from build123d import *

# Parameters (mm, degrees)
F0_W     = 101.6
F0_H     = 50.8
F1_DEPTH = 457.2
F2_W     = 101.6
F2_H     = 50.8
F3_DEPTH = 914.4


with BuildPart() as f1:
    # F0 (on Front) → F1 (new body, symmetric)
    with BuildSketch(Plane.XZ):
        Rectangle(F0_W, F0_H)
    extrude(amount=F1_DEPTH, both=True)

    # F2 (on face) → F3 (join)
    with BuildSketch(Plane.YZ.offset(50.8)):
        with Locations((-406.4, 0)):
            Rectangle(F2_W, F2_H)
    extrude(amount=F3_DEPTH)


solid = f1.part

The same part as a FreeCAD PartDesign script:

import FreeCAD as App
import Part
import Sketcher
from FreeCAD import Vector
Q = App.Units.Quantity


def add_polygon(sketch, points):
    """Adds a closed chain of lines whose ends are joined by coincident constraints."""
    first, n = sketch.GeometryCount, len(points)
    for a, b in zip(points, points[1:] + points[:1]):
        sketch.addGeometry(Part.LineSegment(App.Vector(*a, 0), App.Vector(*b, 0)), False)
    for i in range(n):
        sketch.addConstraint(Sketcher.Constraint("Coincident", first + i, 2, first + (i + 1) % n, 1))

doc = App.newDocument("Part")
body = doc.addObject("PartDesign::Body", "Body")

# Sketch on XZ plane
sketch1 = body.newObject("Sketcher::SketchObject", "Sketch")
sketch1.AttachmentSupport = (doc.getObject("XZ_Plane"), [""])
sketch1.MapMode = "FlatFace"
add_polygon(sketch1, [(-50.8, 25.4), (-50.8, -25.4), (50.8, -25.4), (50.8, 25.4)])  # lines 0-3
sketch1.addConstraint(Sketcher.Constraint("Vertical", 0))
sketch1.addConstraint(Sketcher.Constraint("Horizontal", 1))
sketch1.addConstraint(Sketcher.Constraint("Vertical", 2))
sketch1.addConstraint(Sketcher.Constraint("Horizontal", 3))
sketch1.addConstraint(Sketcher.Constraint("Symmetric", 0, 2, 2, 2, -1, 1))
sketch1.addConstraint(Sketcher.Constraint("DistanceX", 1, 1, 1, 2, Q("4 in")))
sketch1.addConstraint(Sketcher.Constraint("DistanceY", 0, 2, 0, 1, Q("2 in")))
pad1 = body.newObject("PartDesign::Pad", "Pad")
pad1.Profile = sketch1
pad1.Length = Q("36 in")
pad1.Midplane = True

# Sketch on YZ plane
sketch2 = body.newObject("Sketcher::SketchObject", "Sketch001")
sketch2.AttachmentSupport = (doc.getObject("YZ_Plane"), [""])
sketch2.MapMode = "FlatFace"
sketch2.AttachmentOffset = App.Placement(Vector(0, 0, 2 * 25.4), App.Rotation())
add_polygon(sketch2, [(-457.2, 25.4), (-457.2, -25.4), (-355.6, -25.4), (-355.6, 25.4)])  # lines 0-3
sketch2.addConstraint(Sketcher.Constraint("Vertical", 0))
sketch2.addConstraint(Sketcher.Constraint("Horizontal", 1))
sketch2.addConstraint(Sketcher.Constraint("Vertical", 2))
sketch2.addConstraint(Sketcher.Constraint("Horizontal", 3))
sketch2.addConstraint(Sketcher.Constraint("DistanceX", 1, 1, 1, 2, Q("4 in")))
sketch2.addConstraint(Sketcher.Constraint("DistanceY", 0, 2, 0, 1, Q("2 in")))
sketch2.addConstraint(Sketcher.Constraint("DistanceX", 0, 2, -1, 1, Q("18 in")))
sketch2.addConstraint(Sketcher.Constraint("DistanceY", 0, 2, -1, 1, Q("1 in")))
pad2 = body.newObject("PartDesign::Pad", "Pad001")
pad2.Profile = sketch2
pad2.Length = Q("36 in")

doc.recompute()
